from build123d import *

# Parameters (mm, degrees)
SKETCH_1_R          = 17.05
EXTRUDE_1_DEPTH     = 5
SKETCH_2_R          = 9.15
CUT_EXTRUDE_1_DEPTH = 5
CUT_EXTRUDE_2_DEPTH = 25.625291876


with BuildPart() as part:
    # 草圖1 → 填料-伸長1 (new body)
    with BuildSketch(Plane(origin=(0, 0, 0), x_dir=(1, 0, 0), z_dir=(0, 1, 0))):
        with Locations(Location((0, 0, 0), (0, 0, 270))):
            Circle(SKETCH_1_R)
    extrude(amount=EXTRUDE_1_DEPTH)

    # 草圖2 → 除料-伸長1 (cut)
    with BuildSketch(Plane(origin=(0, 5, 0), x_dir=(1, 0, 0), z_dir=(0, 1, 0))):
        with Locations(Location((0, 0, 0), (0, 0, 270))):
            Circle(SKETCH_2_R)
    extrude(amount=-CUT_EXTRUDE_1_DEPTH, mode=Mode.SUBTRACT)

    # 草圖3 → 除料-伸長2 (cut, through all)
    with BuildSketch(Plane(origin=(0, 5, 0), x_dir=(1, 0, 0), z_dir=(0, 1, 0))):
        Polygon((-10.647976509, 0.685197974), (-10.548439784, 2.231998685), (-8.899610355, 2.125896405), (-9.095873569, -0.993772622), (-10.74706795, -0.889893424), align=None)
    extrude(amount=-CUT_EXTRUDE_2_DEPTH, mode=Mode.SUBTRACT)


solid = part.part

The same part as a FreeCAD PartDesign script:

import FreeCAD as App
import Part
import Sketcher

doc = App.newDocument("Part")
body = doc.addObject("PartDesign::Body", "Body")

# Sketch on XZ plane
sketch1 = body.newObject("Sketcher::SketchObject", "Sketch")
sketch1.AttachmentSupport = (doc.getObject("XZ_Plane"), [""])
sketch1.MapMode = "FlatFace"
sketch1.addGeometry(Part.Circle(App.Vector(0, 0, 0), App.Vector(0, 0, 1), 17), False)
sketch1.addConstraint([
    Sketcher.Constraint("Coincident", 0, 3, -1, 1),
    Sketcher.Constraint("Diameter", 0, 34.1),
])
pad1 = body.newObject("PartDesign::Pad", "Pad")
pad1.Profile = sketch1
pad1.Length = 5
pad1.Reversed = True

# Sketch on XZ plane
sketch2 = body.newObject("Sketcher::SketchObject", "Sketch001")
sketch2.AttachmentSupport = (doc.getObject("XZ_Plane"), [""])
sketch2.MapMode = "FlatFace"
sketch2.AttachmentOffset = App.Placement(App.Vector(0, 0, -5), App.Rotation())
sketch2.addGeometry(Part.Circle(App.Vector(0, 0, 0), App.Vector(0, 0, 1), 9), False)
sketch2.addConstraint([
    Sketcher.Constraint("Coincident", 0, 3, -1, 1),
    Sketcher.Constraint("Diameter", 0, 18.3),
])
pocket1 = body.newObject("PartDesign::Pocket", "Pocket")
pocket1.Profile = sketch2
pocket1.Length = 5
pocket1.Reversed = True

# Sketch on XZ plane
sketch3 = body.newObject("Sketcher::SketchObject", "Sketch002")
sketch3.AttachmentSupport = (doc.getObject("XZ_Plane"), [""])
sketch3.MapMode = "FlatFace"
sketch3.AttachmentOffset = App.Placement(App.Vector(0, 0, -5), App.Rotation())
sketch3.addGeometry([
    Part.LineSegment(App.Vector(-10.5, -2.2, 0), App.Vector(-10.6, -0.7, 0)),  # 0
    Part.LineSegment(App.Vector(-10.6, -0.7, 0), App.Vector(-10.7, 0.9, 0)),  # 1
    Part.LineSegment(App.Vector(-10.7, 0.9, 0), App.Vector(-9.1, 1, 0)),  # 2
    Part.LineSegment(App.Vector(-9.1, 1, 0), App.Vector(-8.9, -2.1, 0)),  # 3
    Part.LineSegment(App.Vector(-8.9, -2.1, 0), App.Vector(-10.5, -2.2, 0)),  # 4
], False)
sketch3.addConstraint([
    Sketcher.Constraint("Coincident", 0, 2, 1, 1),
    Sketcher.Constraint("Coincident", 1, 2, 2, 1),
    Sketcher.Constraint("Coincident", 2, 2, 3, 1),
    Sketcher.Constraint("Coincident", 3, 2, 4, 1),
    Sketcher.Constraint("Coincident", 4, 2, 0, 1),
    Sketcher.Constraint("Perpendicular", 1, 2),
    Sketcher.Constraint("Perpendicular", 2, 3),
    Sketcher.Constraint("Perpendicular", 0, 4),
    Sketcher.Constraint("Distance", 0, 1.55),
    Sketcher.Constraint("DistanceY", 4, 2, -1, 1, 2.231999),
    Sketcher.Constraint("DistanceY", 3, 2, 0, 2, 1.440698),
    Sketcher.Constraint("Distance", 2, 1.654459),
    Sketcher.Constraint("Distance", 4, 1.65224),
    Sketcher.Constraint("DistanceX", 3, 2, -1, 1, 8.89961),
    Sketcher.Constraint("DistanceX", 1, 2, 0, 2, 0.099091),
])
pocket2 = body.newObject("PartDesign::Pocket", "Pocket001")
pocket2.Profile = sketch3
pocket2.Type = "ThroughAll"
pocket2.Reversed = True

doc.recompute()
